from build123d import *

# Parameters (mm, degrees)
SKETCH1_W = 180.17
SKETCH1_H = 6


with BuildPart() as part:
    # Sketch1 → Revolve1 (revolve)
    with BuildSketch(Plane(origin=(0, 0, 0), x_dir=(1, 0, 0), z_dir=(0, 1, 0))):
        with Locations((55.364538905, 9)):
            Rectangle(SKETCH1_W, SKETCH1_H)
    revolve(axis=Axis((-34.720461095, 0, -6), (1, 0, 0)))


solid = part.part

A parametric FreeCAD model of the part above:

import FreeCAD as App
import Part
import Sketcher
from FreeCAD import Vector

doc = App.newDocument("Part")
body = doc.addObject("PartDesign::Body", "Body")

sketch1 = body.newObject("Sketcher::SketchObject", "Sketch")
sketch1.AttachmentSupport = (doc.getObject("XZ_Plane"), [""])
sketch1.MapMode = "FlatFace"
sketch1.addGeometry(Part.LineSegment(Vector(-34.720461, -12, 0), Vector(-34.720461, -6, 0)), False)
sketch1.addGeometry(Part.LineSegment(Vector(-34.720461, -6, 0), Vector(145.449539, -6, 0)), False)
sketch1.addGeometry(Part.LineSegment(Vector(145.449539, -6, 0), Vector(145.449539, -12, 0)), False)
sketch1.addGeometry(Part.LineSegment(Vector(145.449539, -12, 0), Vector(-34.720461, -12, 0)), False)
sketch1.addGeometry(Part.LineSegment(Vector(-34.720461, -6, 0), Vector(145.449539, -6, 0)), True)
sketch1.addConstraint(Sketcher.Constraint("Coincident", 0, 2, 1, 1))
sketch1.addConstraint(Sketcher.Constraint("Coincident", 1, 2, 2, 1))
sketch1.addConstraint(Sketcher.Constraint("Coincident", 2, 2, 3, 1))
sketch1.addConstraint(Sketcher.Constraint("Coincident", 3, 2, 0, 1))
sketch1.addConstraint(Sketcher.Constraint("Vertical", 0))
sketch1.addConstraint(Sketcher.Constraint("Horizontal", 1))
sketch1.addConstraint(Sketcher.Constraint("Vertical", 2))
sketch1.addConstraint(Sketcher.Constraint("Horizontal", 3))
sketch1.addConstraint(Sketcher.Constraint("Horizontal", 4))
sketch1.addConstraint(Sketcher.Constraint("Coincident", 4, 1, 0, 2))
sketch1.addConstraint(Sketcher.Constraint("Vertical", 2, 2, 4, 2))
sketch1.addConstraint(Sketcher.Constraint("DistanceY", 0, 1, 0, 2, 6.0))
sketch1.addConstraint(Sketcher.Constraint("DistanceY", 0, 2, -1, 1, 6.0))
sketch1.addConstraint(Sketcher.Constraint("DistanceX", 1, 1, 1, 2, 180.17))
sketch1.addConstraint(Sketcher.Constraint("DistanceX", 0, 2, -1, 1, 34.720461))
revolution = body.newObject("PartDesign::Revolution", "Revolution")
revolution.Profile = sketch1
revolution.ReferenceAxis = (sketch1, ["Axis0"])
revolution.Angle = 360

doc.recompute()
